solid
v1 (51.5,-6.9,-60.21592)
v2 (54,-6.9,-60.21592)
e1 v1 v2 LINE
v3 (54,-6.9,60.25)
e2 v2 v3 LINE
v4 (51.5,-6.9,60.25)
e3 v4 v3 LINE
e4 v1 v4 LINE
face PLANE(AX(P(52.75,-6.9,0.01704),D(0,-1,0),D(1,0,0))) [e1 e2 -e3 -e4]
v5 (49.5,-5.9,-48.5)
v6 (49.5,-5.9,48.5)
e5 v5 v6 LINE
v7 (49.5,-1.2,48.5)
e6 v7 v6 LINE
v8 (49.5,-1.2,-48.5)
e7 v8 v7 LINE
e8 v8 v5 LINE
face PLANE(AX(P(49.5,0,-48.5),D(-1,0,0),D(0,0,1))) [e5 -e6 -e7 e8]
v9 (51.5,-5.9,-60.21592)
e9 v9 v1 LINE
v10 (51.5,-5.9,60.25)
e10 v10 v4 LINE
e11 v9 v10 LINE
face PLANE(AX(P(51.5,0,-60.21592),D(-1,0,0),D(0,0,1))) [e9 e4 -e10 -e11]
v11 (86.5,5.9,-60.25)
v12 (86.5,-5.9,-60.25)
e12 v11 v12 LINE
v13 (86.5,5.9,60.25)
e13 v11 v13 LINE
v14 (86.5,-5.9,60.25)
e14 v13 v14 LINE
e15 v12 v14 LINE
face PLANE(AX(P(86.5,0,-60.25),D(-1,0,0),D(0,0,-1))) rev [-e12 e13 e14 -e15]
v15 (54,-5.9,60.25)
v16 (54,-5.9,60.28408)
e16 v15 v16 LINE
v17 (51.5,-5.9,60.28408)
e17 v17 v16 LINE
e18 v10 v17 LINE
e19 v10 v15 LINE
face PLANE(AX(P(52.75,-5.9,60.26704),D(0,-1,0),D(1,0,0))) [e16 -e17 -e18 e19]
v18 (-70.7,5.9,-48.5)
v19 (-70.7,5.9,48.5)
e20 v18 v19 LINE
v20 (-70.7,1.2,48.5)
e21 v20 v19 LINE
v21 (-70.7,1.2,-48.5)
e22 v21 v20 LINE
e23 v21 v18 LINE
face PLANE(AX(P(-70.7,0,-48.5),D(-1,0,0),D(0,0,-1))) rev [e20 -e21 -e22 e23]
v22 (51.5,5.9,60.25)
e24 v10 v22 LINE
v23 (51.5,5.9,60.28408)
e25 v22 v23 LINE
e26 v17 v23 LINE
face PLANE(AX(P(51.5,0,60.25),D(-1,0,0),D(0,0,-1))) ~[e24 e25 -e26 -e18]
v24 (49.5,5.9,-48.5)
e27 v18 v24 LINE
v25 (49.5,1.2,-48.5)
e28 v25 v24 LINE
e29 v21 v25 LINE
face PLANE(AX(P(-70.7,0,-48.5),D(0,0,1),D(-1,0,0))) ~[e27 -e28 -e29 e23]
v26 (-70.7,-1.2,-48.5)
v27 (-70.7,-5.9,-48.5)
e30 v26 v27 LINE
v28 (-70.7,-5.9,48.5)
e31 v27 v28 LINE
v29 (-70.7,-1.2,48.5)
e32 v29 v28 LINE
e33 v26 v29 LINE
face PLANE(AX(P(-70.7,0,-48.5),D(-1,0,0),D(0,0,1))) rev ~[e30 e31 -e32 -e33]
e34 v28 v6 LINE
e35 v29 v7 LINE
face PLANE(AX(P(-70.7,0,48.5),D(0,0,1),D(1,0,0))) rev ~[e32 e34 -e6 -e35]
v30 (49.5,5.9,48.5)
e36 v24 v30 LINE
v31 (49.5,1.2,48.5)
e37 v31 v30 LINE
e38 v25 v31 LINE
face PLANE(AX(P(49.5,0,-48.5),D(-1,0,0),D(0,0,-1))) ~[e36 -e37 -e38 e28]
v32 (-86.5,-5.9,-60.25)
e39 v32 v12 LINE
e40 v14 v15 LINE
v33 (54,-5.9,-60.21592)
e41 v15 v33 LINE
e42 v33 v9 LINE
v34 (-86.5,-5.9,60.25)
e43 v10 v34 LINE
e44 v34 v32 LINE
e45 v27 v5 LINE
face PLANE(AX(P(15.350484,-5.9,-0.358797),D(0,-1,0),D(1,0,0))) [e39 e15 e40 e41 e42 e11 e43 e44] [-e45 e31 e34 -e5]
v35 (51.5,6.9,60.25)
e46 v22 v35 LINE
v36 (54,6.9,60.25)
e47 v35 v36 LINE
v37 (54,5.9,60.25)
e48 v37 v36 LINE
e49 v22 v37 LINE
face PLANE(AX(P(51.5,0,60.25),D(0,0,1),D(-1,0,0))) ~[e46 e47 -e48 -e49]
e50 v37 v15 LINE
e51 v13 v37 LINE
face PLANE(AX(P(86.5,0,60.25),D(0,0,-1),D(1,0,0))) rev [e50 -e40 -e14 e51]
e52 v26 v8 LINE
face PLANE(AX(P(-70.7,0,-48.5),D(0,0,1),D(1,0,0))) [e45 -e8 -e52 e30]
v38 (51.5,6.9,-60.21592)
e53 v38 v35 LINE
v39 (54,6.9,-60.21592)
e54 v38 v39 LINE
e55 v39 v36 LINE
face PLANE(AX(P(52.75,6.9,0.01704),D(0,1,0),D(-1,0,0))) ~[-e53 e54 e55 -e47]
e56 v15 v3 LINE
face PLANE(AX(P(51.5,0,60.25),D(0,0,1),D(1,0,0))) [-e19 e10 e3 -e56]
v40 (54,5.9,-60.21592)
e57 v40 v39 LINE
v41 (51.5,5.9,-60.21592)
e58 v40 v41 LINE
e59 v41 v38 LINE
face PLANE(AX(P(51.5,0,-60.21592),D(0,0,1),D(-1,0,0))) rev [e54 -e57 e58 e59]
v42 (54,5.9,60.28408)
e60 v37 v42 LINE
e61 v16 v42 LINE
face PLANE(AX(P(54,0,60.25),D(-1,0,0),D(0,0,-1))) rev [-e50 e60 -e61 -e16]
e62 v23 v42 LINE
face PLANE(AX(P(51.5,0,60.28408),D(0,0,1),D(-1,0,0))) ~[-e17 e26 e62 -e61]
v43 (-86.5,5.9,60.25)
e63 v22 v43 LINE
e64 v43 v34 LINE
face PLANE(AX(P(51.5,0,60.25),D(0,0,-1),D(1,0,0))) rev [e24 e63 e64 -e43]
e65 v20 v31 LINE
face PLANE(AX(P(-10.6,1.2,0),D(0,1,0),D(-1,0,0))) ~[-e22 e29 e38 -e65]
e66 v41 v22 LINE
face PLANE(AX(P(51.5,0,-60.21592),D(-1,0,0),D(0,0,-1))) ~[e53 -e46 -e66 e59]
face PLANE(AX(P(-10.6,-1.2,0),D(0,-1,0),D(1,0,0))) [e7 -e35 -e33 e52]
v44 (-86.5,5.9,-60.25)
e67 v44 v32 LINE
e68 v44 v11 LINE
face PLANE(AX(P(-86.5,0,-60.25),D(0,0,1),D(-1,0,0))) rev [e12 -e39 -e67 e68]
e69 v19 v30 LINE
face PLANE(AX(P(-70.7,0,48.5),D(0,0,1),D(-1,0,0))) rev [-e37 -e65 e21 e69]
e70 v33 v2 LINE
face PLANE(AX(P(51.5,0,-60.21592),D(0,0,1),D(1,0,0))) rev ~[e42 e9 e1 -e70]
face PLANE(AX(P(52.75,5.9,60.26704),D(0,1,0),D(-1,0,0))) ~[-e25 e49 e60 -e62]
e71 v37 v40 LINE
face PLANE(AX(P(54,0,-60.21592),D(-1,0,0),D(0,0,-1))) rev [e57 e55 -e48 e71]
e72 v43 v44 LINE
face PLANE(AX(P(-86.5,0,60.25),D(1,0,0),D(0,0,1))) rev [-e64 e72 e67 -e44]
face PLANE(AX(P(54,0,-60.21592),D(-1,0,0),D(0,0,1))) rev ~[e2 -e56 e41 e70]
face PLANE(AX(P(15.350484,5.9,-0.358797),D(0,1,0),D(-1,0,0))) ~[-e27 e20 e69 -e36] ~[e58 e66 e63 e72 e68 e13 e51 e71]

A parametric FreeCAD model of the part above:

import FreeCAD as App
import Part
import Sketcher
from FreeCAD import Vector
Q = App.Units.Quantity


def add_polygon(sketch, points):
    """Adds a closed chain of lines whose ends are joined by coincident constraints."""
    first, n = sketch.GeometryCount, len(points)
    for a, b in zip(points, points[1:] + points[:1]):
        sketch.addGeometry(Part.LineSegment(App.Vector(*a, 0), App.Vector(*b, 0)), False)
    for i in range(n):
        sketch.addConstraint(Sketcher.Constraint("Coincident", first + i, 2, first + (i + 1) % n, 1))

doc = App.newDocument("Part")
body = doc.addObject("PartDesign::Body", "Body")
body.AllowCompound = True

sketch1 = body.newObject("Sketcher::SketchObject", "Sketch")
sketch1.AttachmentSupport = (doc.getObject("XZ_Plane"), [""])
sketch1.MapMode = "FlatFace"
add_polygon(sketch1, [(51.5, 60.25), (-86.5, 60.25), (-86.5, -60.25), (86.5, -60.25), (86.5, 60.25), (54, 60.25), (54, -60.21592), (51.5, -60.21592)])
add_polygon(sketch1, [(49.5, -48.5), (-70.7, -48.5), (-70.7, 48.5), (49.5, 48.5)])
add_polygon(sketch1, [(51.5, 60.28408), (51.5, 60.25), (54, 60.25), (54, 60.28408)])
sketch1.addConstraint([
    Sketcher.Constraint("Horizontal", 0),
    Sketcher.Constraint("Vertical", 1),
    Sketcher.Constraint("Horizontal", 2),
    Sketcher.Constraint("Vertical", 3),
    Sketcher.Constraint("Horizontal", 4),
    Sketcher.Constraint("Vertical", 5),
    Sketcher.Constraint("Horizontal", 6),
    Sketcher.Constraint("Vertical", 7),
    Sketcher.Constraint("Horizontal", 8),
    Sketcher.Constraint("Vertical", 9),
    Sketcher.Constraint("Horizontal", 10),
    Sketcher.Constraint("Vertical", 11),
    Sketcher.Constraint("Vertical", 12),
    Sketcher.Constraint("Horizontal", 13),
    Sketcher.Constraint("Vertical", 14),
    Sketcher.Constraint("Horizontal", 15),
    Sketcher.Constraint("Coincident", 12, 2, 7, 2),
    Sketcher.Constraint("Coincident", 13, 2, 4, 2),
    Sketcher.Constraint("Symmetric", 0, 2, 2, 2, -1, 1),
    Sketcher.Constraint("DistanceX", 0, 2, 0, 1, Q("138 mm")),
    Sketcher.Constraint("DistanceX", 2, 1, 2, 2, Q("173 mm")),
    Sketcher.Constraint("DistanceY", 9, 1, 9, 2, Q("97 mm")),
    Sketcher.Constraint("DistanceX", 4, 2, 4, 1, Q("32.5 mm")),
    Sketcher.Constraint("DistanceX", 8, 2, 8, 1, Q("120.2 mm")),
    Sketcher.Constraint("DistanceY", 1, 2, 1, 1, Q("120.5 mm")),
    Sketcher.Constraint("DistanceX", 10, 2, 7, 2, Q("2 mm")),
    Sketcher.Constraint("DistanceY", 8, 2, -1, 1, Q("48.5 mm")),
    Sketcher.Constraint("DistanceY", 5, 2, 5, 1, Q("120.46592 mm")),
    Sketcher.Constraint("DistanceY", 12, 2, 12, 1, Q("0.03408 mm")),
])
pad1 = body.newObject("PartDesign::Pad", "Pad")
pad1.Profile = sketch1
pad1.Length = 5.9

sketch2 = body.newObject("Sketcher::SketchObject", "Sketch001")
sketch2.AttachmentSupport = (doc.getObject("XZ_Plane"), [""])
sketch2.MapMode = "FlatFace"
add_polygon(sketch2, [(51.5, 60.25), (51.5, -60.21592), (54, -60.21592), (54, 60.25)])
sketch2.addConstraint([
    Sketcher.Constraint("Vertical", 0),
    Sketcher.Constraint("Horizontal", 1),
    Sketcher.Constraint("Vertical", 2),
    Sketcher.Constraint("Horizontal", 3),
    Sketcher.Constraint("DistanceX", 1, 1, 1, 2, Q("2.5 mm")),
    Sketcher.Constraint("DistanceX", -1, 1, 1, 2, Q("54 mm")),
    Sketcher.Constraint("DistanceY", -1, 1, 2, 2, Q("60.25 mm")),
    Sketcher.Constraint("DistanceY", 0, 2, 0, 1, Q("120.46592 mm")),
])
pad2 = body.newObject("PartDesign::Pad", "Pad001")
pad2.Profile = sketch2
pad2.Length = 6.9

sketch3 = body.newObject("Sketcher::SketchObject", "Sketch002")
sketch3.AttachmentSupport = (doc.getObject("XZ_Plane"), [""])
sketch3.MapMode = "FlatFace"
add_polygon(sketch3, [(-70.7, 48.5), (-70.7, -48.5), (49.5, -48.5), (49.5, 48.5)])
sketch3.addConstraint([
    Sketcher.Constraint("Vertical", 0),
    Sketcher.Constraint("Horizontal", 1),
    Sketcher.Constraint("Vertical", 2),
    Sketcher.Constraint("Horizontal", 3),
    Sketcher.Constraint("DistanceY", 0, 2, 0, 1, Q("97 mm")),
    Sketcher.Constraint("DistanceX", 1, 1, 1, 2, Q("120.2 mm")),
    Sketcher.Constraint("DistanceX", 0, 2, -1, 1, Q("70.7 mm")),
    Sketcher.Constraint("DistanceY", 0, 2, -1, 1, Q("48.5 mm")),
])
pad3 = body.newObject("PartDesign::Pad", "Pad002")
pad3.Profile = sketch3
pad3.Length = 1.2
body2 = doc.addObject("PartDesign::Body", "Body001")
doc.recompute()

body2.BaseFeature = body
doc.recompute()

mirroring = doc.addObject("Part::Mirroring", "Mirroring")
mirroring.Source = body
mirroring.Base = Vector(0.000216, 0, 0.000246)
mirroring.Normal = Vector(0, 1, 0)
body3 = doc.addObject("PartDesign::Body", "Body002")
body3.BaseFeature = mirroring
boolean = body2.newObject("PartDesign::Boolean", "Boolean")
boolean.Type = "Fuse"
boolean.addObjects([body3])
doc.recompute()
mirroring.Visibility = False

doc.recompute()
